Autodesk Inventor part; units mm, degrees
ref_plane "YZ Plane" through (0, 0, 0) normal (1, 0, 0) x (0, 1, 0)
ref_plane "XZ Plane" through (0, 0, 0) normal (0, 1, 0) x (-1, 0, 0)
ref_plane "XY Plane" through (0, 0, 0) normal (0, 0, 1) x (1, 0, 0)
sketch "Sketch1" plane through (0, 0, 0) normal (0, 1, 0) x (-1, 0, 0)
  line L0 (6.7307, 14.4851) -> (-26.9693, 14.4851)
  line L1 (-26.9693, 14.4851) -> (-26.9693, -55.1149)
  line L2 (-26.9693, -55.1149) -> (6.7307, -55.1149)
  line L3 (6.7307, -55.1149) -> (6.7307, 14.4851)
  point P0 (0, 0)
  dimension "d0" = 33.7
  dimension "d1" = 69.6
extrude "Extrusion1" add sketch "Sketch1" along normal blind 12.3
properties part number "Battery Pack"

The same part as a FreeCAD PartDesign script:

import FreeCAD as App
import Part
import Sketcher

doc = App.newDocument("Part")
params = doc.addObject("Spreadsheet::Sheet", "Params")
for row, (alias, value) in enumerate([
    ("sketch1_width", "33.7 mm"),
    ("sketch1_height", "69.6 mm"),
    ("pad1_length", "12.3 mm"),
], start=1):
    params.set(f"A{row}", alias)
    params.set(f"B{row}", "=" + value)
    params.setAlias(f"B{row}", alias)

body = doc.addObject("PartDesign::Body", "Body")

sketch1 = body.newObject("Sketcher::SketchObject", "Sketch")
sketch1.AttachmentSupport = (doc.getObject("XZ_Plane"), [""])
sketch1.MapMode = "FlatFace"
sketch1.addGeometry([
    Part.LineSegment(App.Vector(-6.7307, -55.1149, 0), App.Vector(-6.7307, 14.4851, 0)),
    Part.LineSegment(App.Vector(-6.7307, 14.4851, 0), App.Vector(26.9693, 14.4851, 0)),
    Part.LineSegment(App.Vector(26.9693, 14.4851, 0), App.Vector(26.9693, -55.1149, 0)),
    Part.LineSegment(App.Vector(26.9693, -55.1149, 0), App.Vector(-6.7307, -55.1149, 0)),
], False)
sketch1.addConstraint([
    Sketcher.Constraint("Coincident", 0, 2, 1, 1),
    Sketcher.Constraint("Coincident", 1, 2, 2, 1),
    Sketcher.Constraint("Coincident", 2, 2, 3, 1),
    Sketcher.Constraint("Coincident", 3, 2, 0, 1),
    Sketcher.Constraint("Vertical", 0),
    Sketcher.Constraint("Horizontal", 1),
    Sketcher.Constraint("Vertical", 2),
    Sketcher.Constraint("Horizontal", 3),
    Sketcher.Constraint("DistanceX", 1, 1, 1, 2, 33.7),
    Sketcher.Constraint("DistanceY", 0, 1, 0, 2, 69.6),
    Sketcher.Constraint("DistanceY", -1, 1, 0, 2, 14.485),
    Sketcher.Constraint("DistanceX", 0, 2, -1, 1, 6.7307),
])
sketch1.setExpression("Constraints[8]", "Params.sketch1_width")
sketch1.setExpression("Constraints[9]", "Params.sketch1_height")
pad1 = body.newObject("PartDesign::Pad", "Pad")
pad1.Profile = sketch1
pad1.setExpression("Length", "Params.pad1_length")
pad1.Reversed = True

doc.recompute()
